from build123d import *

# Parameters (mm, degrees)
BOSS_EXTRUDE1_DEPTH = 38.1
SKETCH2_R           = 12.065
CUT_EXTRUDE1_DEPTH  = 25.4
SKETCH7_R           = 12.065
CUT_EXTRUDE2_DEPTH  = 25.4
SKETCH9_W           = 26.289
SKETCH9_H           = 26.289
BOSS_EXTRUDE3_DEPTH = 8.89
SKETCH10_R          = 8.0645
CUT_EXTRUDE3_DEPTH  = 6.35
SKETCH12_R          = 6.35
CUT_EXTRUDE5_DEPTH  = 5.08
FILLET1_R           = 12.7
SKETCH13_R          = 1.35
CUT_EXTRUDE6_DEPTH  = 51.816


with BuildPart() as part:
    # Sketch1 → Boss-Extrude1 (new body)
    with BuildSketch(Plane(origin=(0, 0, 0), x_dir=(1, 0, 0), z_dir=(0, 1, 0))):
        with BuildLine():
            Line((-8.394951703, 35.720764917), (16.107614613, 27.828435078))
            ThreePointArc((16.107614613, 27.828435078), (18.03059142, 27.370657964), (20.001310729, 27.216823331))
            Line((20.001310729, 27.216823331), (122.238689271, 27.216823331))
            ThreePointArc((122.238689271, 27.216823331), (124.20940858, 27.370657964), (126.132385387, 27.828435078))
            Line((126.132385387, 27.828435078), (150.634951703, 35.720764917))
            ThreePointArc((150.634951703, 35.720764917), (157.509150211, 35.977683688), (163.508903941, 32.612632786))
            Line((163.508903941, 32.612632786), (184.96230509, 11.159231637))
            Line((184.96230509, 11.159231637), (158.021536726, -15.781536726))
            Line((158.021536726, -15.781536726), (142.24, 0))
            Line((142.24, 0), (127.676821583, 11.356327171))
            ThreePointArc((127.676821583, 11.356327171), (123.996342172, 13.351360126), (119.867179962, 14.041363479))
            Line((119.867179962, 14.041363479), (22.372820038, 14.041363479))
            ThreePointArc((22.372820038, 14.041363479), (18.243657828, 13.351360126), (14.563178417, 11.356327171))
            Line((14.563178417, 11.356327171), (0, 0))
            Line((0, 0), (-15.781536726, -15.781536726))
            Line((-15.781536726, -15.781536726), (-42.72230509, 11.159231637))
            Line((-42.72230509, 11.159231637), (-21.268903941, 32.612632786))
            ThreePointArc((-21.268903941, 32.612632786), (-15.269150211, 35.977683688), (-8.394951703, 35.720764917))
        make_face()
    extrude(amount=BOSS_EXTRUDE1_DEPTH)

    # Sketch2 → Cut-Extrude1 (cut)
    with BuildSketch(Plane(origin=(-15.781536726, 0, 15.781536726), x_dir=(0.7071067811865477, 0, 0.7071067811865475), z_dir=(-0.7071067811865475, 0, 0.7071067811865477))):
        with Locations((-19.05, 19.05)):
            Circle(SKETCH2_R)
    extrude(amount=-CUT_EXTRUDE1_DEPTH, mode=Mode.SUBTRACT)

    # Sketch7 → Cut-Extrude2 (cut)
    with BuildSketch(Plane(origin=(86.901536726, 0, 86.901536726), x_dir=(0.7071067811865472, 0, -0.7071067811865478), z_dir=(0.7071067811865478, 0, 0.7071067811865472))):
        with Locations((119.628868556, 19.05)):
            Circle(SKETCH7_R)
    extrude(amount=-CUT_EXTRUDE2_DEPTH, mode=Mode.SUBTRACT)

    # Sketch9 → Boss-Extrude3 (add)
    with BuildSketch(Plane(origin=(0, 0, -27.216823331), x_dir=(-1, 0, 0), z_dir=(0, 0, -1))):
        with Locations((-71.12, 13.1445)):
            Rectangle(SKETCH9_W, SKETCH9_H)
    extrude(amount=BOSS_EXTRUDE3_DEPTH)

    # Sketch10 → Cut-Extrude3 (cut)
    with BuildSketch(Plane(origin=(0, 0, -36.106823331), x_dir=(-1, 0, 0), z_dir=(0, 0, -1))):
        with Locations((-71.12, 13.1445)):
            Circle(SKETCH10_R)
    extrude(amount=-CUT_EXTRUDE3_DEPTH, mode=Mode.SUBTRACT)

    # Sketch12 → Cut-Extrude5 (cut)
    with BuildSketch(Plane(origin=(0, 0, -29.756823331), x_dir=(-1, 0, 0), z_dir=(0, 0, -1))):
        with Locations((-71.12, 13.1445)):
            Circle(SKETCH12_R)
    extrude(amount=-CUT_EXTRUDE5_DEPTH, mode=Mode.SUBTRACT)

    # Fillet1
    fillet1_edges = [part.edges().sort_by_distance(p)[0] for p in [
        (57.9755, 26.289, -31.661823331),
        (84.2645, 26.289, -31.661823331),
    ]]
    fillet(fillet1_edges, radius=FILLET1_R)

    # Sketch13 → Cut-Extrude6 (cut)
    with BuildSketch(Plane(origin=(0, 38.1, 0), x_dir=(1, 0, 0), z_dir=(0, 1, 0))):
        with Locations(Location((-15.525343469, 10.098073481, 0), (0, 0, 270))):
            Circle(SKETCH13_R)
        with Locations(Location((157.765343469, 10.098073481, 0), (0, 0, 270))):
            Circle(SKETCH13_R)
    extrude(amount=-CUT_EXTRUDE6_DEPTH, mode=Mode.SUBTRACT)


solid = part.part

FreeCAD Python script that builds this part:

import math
import FreeCAD as App
import Part
import Sketcher
Q = App.Units.Quantity


def edges_at(feature, points):
    """Names of the edges that pass closest to the given points."""
    edges = feature.Shape.Edges
    near = lambda p: min(range(len(edges)), key=lambda i: edges[i].distToShape(Part.Vertex(*p))[0])
    return sorted({f"Edge{near(p) + 1}" for p in points})

doc = App.newDocument("Part")
body = doc.addObject("PartDesign::Body", "Body")

sketch1 = body.newObject("Sketcher::SketchObject", "Sketch")
sketch1.AttachmentSupport = (doc.getObject("XZ_Plane"), [""])
sketch1.MapMode = "FlatFace"
sketch1.addGeometry([
    Part.LineSegment(App.Vector(16.1, -27.8, 0), App.Vector(-8.4, -35.7, 0)),
    Part.ArcOfCircle(Part.Circle(App.Vector(-12.3, -23.6, 0), App.Vector(0, 0, 1), 12.7), math.radians(-135), math.radians(-72)),
    Part.LineSegment(App.Vector(-21.3, -32.6, 0), App.Vector(-42.7, -11.2, 0)),
    Part.LineSegment(App.Vector(-42.7, -11.2, 0), App.Vector(-15.8, 15.8, 0)),
    Part.LineSegment(App.Vector(-15.8, 15.8, 0), App.Vector(0, 0, 0)),
    Part.LineSegment(App.Vector(0, 0, 0), App.Vector(14.6, -11.4, 0)),
    Part.ArcOfCircle(Part.Circle(App.Vector(22.4, -1.3, 0), App.Vector(0, 0, 1), 12.7), math.radians(-128), math.radians(-90)),
    Part.LineSegment(App.Vector(22.4, -14, 0), App.Vector(119.9, -14, 0)),
    Part.ArcOfCircle(Part.Circle(App.Vector(119.9, -1.3, 0), App.Vector(0, 0, 1), 12.7), math.radians(-90), math.radians(-52)),
    Part.LineSegment(App.Vector(127.7, -11.4, 0), App.Vector(142.2, 0, 0)),
    Part.LineSegment(App.Vector(142.2, 0, 0), App.Vector(158, 15.8, 0)),
    Part.LineSegment(App.Vector(158, 15.8, 0), App.Vector(185, -11.2, 0)),
    Part.LineSegment(App.Vector(185, -11.2, 0), App.Vector(163.5, -32.6, 0)),
    Part.ArcOfCircle(Part.Circle(App.Vector(154.5, -23.6, 0), App.Vector(0, 0, 1), 12.7), math.radians(-108), math.radians(-45)),
    Part.LineSegment(App.Vector(150.6, -35.7, 0), App.Vector(126.1, -27.8, 0)),
    Part.ArcOfCircle(Part.Circle(App.Vector(122.2, -39.9, 0), App.Vector(0, 0, 1), 12.7), math.radians(72.15), math.radians(90)),
    Part.LineSegment(App.Vector(122.2, -27.2, 0), App.Vector(20, -27.2, 0)),
    Part.ArcOfCircle(Part.Circle(App.Vector(20, -39.9, 0), App.Vector(0, 0, 1), 12.7), math.radians(90), math.radians(107.85)),
], False)
sketch1.addConstraint([
    Sketcher.Constraint("Tangent", 0, 2, 1, 2),
    Sketcher.Constraint("Tangent", 1, 1, 2, 1),
    Sketcher.Constraint("Coincident", 2, 2, 3, 1),
    Sketcher.Constraint("Coincident", 3, 2, 4, 1),
    Sketcher.Constraint("Coincident", 4, 2, 5, 1),
    Sketcher.Constraint("Tangent", 5, 2, 6, 1),
    Sketcher.Constraint("Tangent", 6, 2, 7, 1),
    Sketcher.Constraint("Tangent", 7, 2, 8, 1),
    Sketcher.Constraint("Tangent", 8, 2, 9, 1),
    Sketcher.Constraint("Coincident", 9, 2, 10, 1),
    Sketcher.Constraint("Coincident", 10, 2, 11, 1),
    Sketcher.Constraint("Coincident", 11, 2, 12, 1),
    Sketcher.Constraint("Tangent", 12, 2, 13, 2),
    Sketcher.Constraint("Tangent", 13, 1, 14, 1),
    Sketcher.Constraint("Tangent", 14, 2, 15, 1),
    Sketcher.Constraint("Tangent", 15, 2, 16, 1),
    Sketcher.Constraint("Tangent", 16, 2, 17, 1),
    Sketcher.Constraint("Tangent", 17, 2, 0, 1),
    Sketcher.Constraint("Horizontal", 7),
    Sketcher.Constraint("Horizontal", 16),
    Sketcher.Constraint("Coincident", 4, 2, -1, 1),
    Sketcher.Constraint("Equal", 1, 6),
    Sketcher.Constraint("Equal", 6, 8),
    Sketcher.Constraint("Equal", 8, 13),
    Sketcher.Constraint("Equal", 13, 15),
    Sketcher.Constraint("Equal", 15, 17),
    Sketcher.Constraint("PointOnObject", 9, 2, -1),
    Sketcher.Constraint("Perpendicular", 2, 3),
    Sketcher.Constraint("Perpendicular", 3, 4),
    Sketcher.Constraint("Perpendicular", 4, 10),
    Sketcher.Constraint("Perpendicular", 10, 11),
    Sketcher.Constraint("Perpendicular", 11, 12),
    Sketcher.Constraint("Horizontal", 1, 3, 13, 3),
    Sketcher.Constraint("Horizontal", 5, 2, 8, 2),
    Sketcher.Constraint("Horizontal", 3, 2, 10, 2),
    Sketcher.Constraint("Horizontal", 2, 2, 11, 2),
    Sketcher.Constraint("Horizontal", 1, 1, 12, 2),
    Sketcher.Constraint("Horizontal", 0, 2, 13, 1),
    Sketcher.Constraint("Radius", 1, Q("0.5 in")),
    Sketcher.Constraint("Distance", 3, Q("1.5 in")),
    Sketcher.Constraint("DistanceX", -1, 1, 9, 2, Q("5.6 in")),
    Sketcher.Constraint("DistanceX", 7, 1, 7, 2, 97.49436),
    Sketcher.Constraint("DistanceX", 16, 2, 16, 1, 102.237379),
    Sketcher.Constraint("DistanceY", 0, 2, 6, 3, 34.379401),
    Sketcher.Constraint("DistanceX", 2, 2, 1, 1, 21.453401),
    Sketcher.Constraint("DistanceY", 6, 3, 3, 2, 17.1229),
    Sketcher.Constraint("DistanceX", 6, 2, 8, 2, 105.304002),
])
pad1 = body.newObject("PartDesign::Pad", "Pad")
pad1.Profile = sketch1
pad1.Length = Q("1.5 in")
pad1.Reversed = True

sketch2 = body.newObject("Sketcher::SketchObject", "Sketch001")
sketch2.Placement = App.Placement(App.Vector(-15.781537, 0, 15.781537), App.Rotation(App.Vector(0.707106781, 0, 0.707106781), App.Vector(0, 0.999999999, 0), App.Vector(-0.707106781, 0, 0.707106781), "ZXY"))
sketch2.addGeometry(Part.Circle(App.Vector(-19, 19, 0), App.Vector(0, 0, 1), 12), False)
sketch2.addConstraint([
    Sketcher.Constraint("Diameter", 0, Q("0.95 in")),
    Sketcher.Constraint("DistanceX", 0, 3, -1, 1, Q("0.75 in")),
    Sketcher.Constraint("DistanceY", -1, 1, 0, 3, Q("0.75 in")),
])
pocket1 = body.newObject("PartDesign::Pocket", "Pocket")
pocket1.Profile = sketch2
pocket1.Length = Q("1 in")

sketch3 = body.newObject("Sketcher::SketchObject", "Sketch002")
sketch3.Placement = App.Placement(App.Vector(86.901537, 0, 86.901537), App.Rotation(App.Vector(0.707106781, 0, -0.707106781), App.Vector(0, 0.999999999, 0), App.Vector(0.707106781, 0, 0.707106781), "ZXY"))
sketch3.addGeometry(Part.Circle(App.Vector(120, 19, 0), App.Vector(0, 0, 1), 12), False)
sketch3.addConstraint([
    Sketcher.Constraint("Diameter", 0, Q("0.95 in")),
    Sketcher.Constraint("DistanceY", -1, 1, 0, 3, Q("0.75 in")),
    Sketcher.Constraint("DistanceX", -1, 1, 0, 3, 119.628868),
])
pocket2 = body.newObject("PartDesign::Pocket", "Pocket001")
pocket2.Profile = sketch3
pocket2.Length = Q("1 in")

sketch4 = body.newObject("Sketcher::SketchObject", "Sketch003")
sketch4.AttachmentSupport = (doc.getObject("XY_Plane"), [""])
sketch4.MapMode = "FlatFace"
sketch4.AttachmentOffset = App.Placement(App.Vector(0, 0, -27.216823), App.Rotation())
sketch4.addGeometry([
    Part.LineSegment(App.Vector(84, 26, 0), App.Vector(84, 0, 0)),
    Part.LineSegment(App.Vector(84, 0, 0), App.Vector(58, 0, 0)),
    Part.LineSegment(App.Vector(58, 0, 0), App.Vector(58, 26, 0)),
    Part.LineSegment(App.Vector(58, 26, 0), App.Vector(84, 26, 0)),
], False)
sketch4.addConstraint([
    Sketcher.Constraint("Coincident", 0, 2, 1, 1),
    Sketcher.Constraint("Coincident", 1, 2, 2, 1),
    Sketcher.Constraint("Coincident", 2, 2, 3, 1),
    Sketcher.Constraint("Coincident", 3, 2, 0, 1),
    Sketcher.Constraint("Vertical", 0),
    Sketcher.Constraint("Horizontal", 1),
    Sketcher.Constraint("Vertical", 2),
    Sketcher.Constraint("Horizontal", 3),
    Sketcher.Constraint("PointOnObject", 0, 2, -1),
    Sketcher.Constraint("Equal", 3, 0),
    Sketcher.Constraint("DistanceX", 1, 2, 1, 1, Q("1.035 in")),
    Sketcher.Constraint("DistanceX", -1, 1, 0, 2, Q("3.3175 in")),
])
pad2 = body.newObject("PartDesign::Pad", "Pad001")
pad2.Profile = sketch4
pad2.Length = Q("0.35 in")
pad2.Reversed = True

sketch5 = body.newObject("Sketcher::SketchObject", "Sketch004")
sketch5.AttachmentSupport = (doc.getObject("XY_Plane"), [""])
sketch5.MapMode = "FlatFace"
sketch5.AttachmentOffset = App.Placement(App.Vector(0, 0, -36.106823), App.Rotation())
sketch5.addGeometry(Part.Circle(App.Vector(71, 13, 0), App.Vector(0, 0, 1), 8), False)
sketch5.addConstraint([
    Sketcher.Constraint("Diameter", 0, Q("0.635 in")),
    Sketcher.Constraint("DistanceX", -1, 1, 0, 3, Q("2.8 in")),
    Sketcher.Constraint("DistanceY", -1, 1, 0, 3, Q("0.5175 in")),
])
pocket3 = body.newObject("PartDesign::Pocket", "Pocket002")
pocket3.Profile = sketch5
pocket3.Length = Q("0.25 in")
pocket3.Reversed = True

sketch6 = body.newObject("Sketcher::SketchObject", "Sketch005")
sketch6.AttachmentSupport = (doc.getObject("XY_Plane"), [""])
sketch6.MapMode = "FlatFace"
sketch6.AttachmentOffset = App.Placement(App.Vector(0, 0, -29.756823), App.Rotation())
sketch6.addGeometry(Part.Circle(App.Vector(71, 13, 0), App.Vector(0, 0, 1), 6), False)
sketch6.addConstraint([
    Sketcher.Constraint("Diameter", 0, Q("0.5 in")),
    Sketcher.Constraint("DistanceX", -1, 1, 0, 3, Q("2.8 in")),
    Sketcher.Constraint("DistanceY", -1, 1, 0, 3, Q("0.5175 in")),
])
pocket4 = body.newObject("PartDesign::Pocket", "Pocket003")
pocket4.Profile = sketch6
pocket4.Length = Q("0.2 in")
pocket4.Reversed = True
doc.recompute()

fillet = body.newObject("PartDesign::Fillet", "Fillet")
fillet.Base = (pocket4, edges_at(pocket4, [(57.975, 26.289, -31.662), (84.264, 26.289, -31.662)]))
fillet.Radius = Q("0.5 in")

sketch7 = body.newObject("Sketcher::SketchObject", "Sketch006")
sketch7.AttachmentSupport = (doc.getObject("XZ_Plane"), [""])
sketch7.MapMode = "FlatFace"
sketch7.AttachmentOffset = App.Placement(App.Vector(0, 0, -1.5 * 25.4), App.Rotation())
sketch7.addGeometry([
    Part.Circle(App.Vector(-15.5, -10.1, 0), App.Vector(0, 0, 1), 1.4),
    Part.Circle(App.Vector(157.8, -10.1, 0), App.Vector(0, 0, 1), 1.4),
], False)
sketch7.addConstraint([
    Sketcher.Constraint("Equal", 0, 1),
    Sketcher.Constraint("Horizontal", 0, 3, 1, 3),
    Sketcher.Constraint("Diameter", 0, 2.7),
    Sketcher.Constraint("DistanceX", 0, 3, -1, 1, 15.525343),
    Sketcher.Constraint("DistanceY", 0, 3, -1, 1, 10.098073),
    Sketcher.Constraint("DistanceX", -1, 1, 1, 3, 157.765343),
])
pocket5 = body.newObject("PartDesign::Pocket", "Pocket004")
pocket5.Profile = sketch7
pocket5.Length = Q("2.04 in")
pocket5.Reversed = True

doc.recompute()
